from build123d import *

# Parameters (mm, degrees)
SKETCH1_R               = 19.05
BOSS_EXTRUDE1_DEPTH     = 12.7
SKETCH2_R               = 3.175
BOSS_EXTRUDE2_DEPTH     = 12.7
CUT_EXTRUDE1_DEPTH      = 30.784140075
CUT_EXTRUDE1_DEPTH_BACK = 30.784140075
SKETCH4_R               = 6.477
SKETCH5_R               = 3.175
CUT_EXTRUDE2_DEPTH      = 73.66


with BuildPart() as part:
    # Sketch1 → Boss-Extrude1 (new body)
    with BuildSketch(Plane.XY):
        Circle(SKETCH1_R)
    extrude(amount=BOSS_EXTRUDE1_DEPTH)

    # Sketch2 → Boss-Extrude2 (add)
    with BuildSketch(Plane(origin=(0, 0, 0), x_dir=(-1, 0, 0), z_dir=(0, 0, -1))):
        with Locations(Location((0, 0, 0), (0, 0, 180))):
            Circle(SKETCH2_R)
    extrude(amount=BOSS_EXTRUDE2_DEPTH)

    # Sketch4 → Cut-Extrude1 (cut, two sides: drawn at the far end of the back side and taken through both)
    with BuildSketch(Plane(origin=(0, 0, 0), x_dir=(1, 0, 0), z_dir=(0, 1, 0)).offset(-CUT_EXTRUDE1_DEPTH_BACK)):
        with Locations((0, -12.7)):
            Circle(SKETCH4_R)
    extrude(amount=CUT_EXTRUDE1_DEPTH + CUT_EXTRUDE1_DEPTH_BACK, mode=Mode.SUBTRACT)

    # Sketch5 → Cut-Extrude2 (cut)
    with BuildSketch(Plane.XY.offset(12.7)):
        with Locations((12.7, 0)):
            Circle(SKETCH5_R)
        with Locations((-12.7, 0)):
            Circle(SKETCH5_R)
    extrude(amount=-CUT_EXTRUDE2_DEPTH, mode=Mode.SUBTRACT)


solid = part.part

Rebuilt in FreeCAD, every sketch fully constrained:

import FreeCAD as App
import Part
import Sketcher
from FreeCAD import Vector
Q = App.Units.Quantity

doc = App.newDocument("Part")
params = doc.addObject("Spreadsheet::Sheet", "Params")
for row, (alias, value) in enumerate([
    ("sketch1_diameter", "1.5 in"),
    ("pad1_length", "0.5 in"),
    ("sketch2_diameter", "0.25 in"),
    ("pad2_length", "0.5 in"),
    ("sketch3_diameter", "0.51 in"),
    ("sketch4_diameter", "0.25 in"),
    ("pocket2_length", "2.9 in"),
], start=1):
    params.set(f"A{row}", alias)
    params.set(f"B{row}", "=" + value)
    params.setAlias(f"B{row}", alias)

body = doc.addObject("PartDesign::Body", "Body")

sketch1 = body.newObject("Sketcher::SketchObject", "Sketch")
sketch1.AttachmentSupport = (doc.getObject("XY_Plane"), [""])
sketch1.MapMode = "FlatFace"
sketch1.addGeometry(Part.Circle(Vector(0, 0, 0), Vector(0, 0, 1), 19), False)
sketch1.addConstraint([
    Sketcher.Constraint("Coincident", 0, 3, -1, 1),
    Sketcher.Constraint("Diameter", 0, Q("1.5 in")),
])
sketch1.setExpression("Constraints[1]", "Params.sketch1_diameter")
pad1 = body.newObject("PartDesign::Pad", "Pad")
pad1.Profile = sketch1
pad1.setExpression("Length", "Params.pad1_length")

sketch2 = body.newObject("Sketcher::SketchObject", "Sketch001")
sketch2.AttachmentSupport = (doc.getObject("XY_Plane"), [""])
sketch2.MapMode = "FlatFace"
sketch2.addGeometry(Part.Circle(Vector(0, 0, 0), Vector(0, 0, 1), 3.2), False)
sketch2.addConstraint([
    Sketcher.Constraint("Coincident", 0, 3, -1, 1),
    Sketcher.Constraint("Diameter", 0, Q("0.25 in")),
])
sketch2.setExpression("Constraints[1]", "Params.sketch2_diameter")
pad2 = body.newObject("PartDesign::Pad", "Pad001")
pad2.Profile = sketch2
pad2.setExpression("Length", "Params.pad2_length")
pad2.Reversed = True

sketch3 = body.newObject("Sketcher::SketchObject", "Sketch002")
sketch3.AttachmentSupport = (doc.getObject("XZ_Plane"), [""])
sketch3.MapMode = "FlatFace"
sketch3.addGeometry(Part.Circle(Vector(0, 13, 0), Vector(0, 0, 1), 6), False)
sketch3.addConstraint([
    Sketcher.Constraint("PointOnObject", 0, 3, -2),
    Sketcher.Constraint("Diameter", 0, Q("0.51 in")),
    Sketcher.Constraint("DistanceY", -1, 1, 0, 3, Q("0.5 in")),
])
sketch3.setExpression("Constraints[1]", "Params.sketch3_diameter")
pocket1 = body.newObject("PartDesign::Pocket", "Pocket")
pocket1.Profile = sketch3
pocket1.Type = "ThroughAll"
pocket1.Midplane = True

sketch4 = body.newObject("Sketcher::SketchObject", "Sketch003")
sketch4.AttachmentSupport = (doc.getObject("XY_Plane"), [""])
sketch4.MapMode = "FlatFace"
sketch4.AttachmentOffset = App.Placement(Vector(0, 0, 0.5 * 25.4), App.Rotation())
sketch4.addGeometry([
    Part.Circle(Vector(12.7, 0, 0), Vector(0, 0, 1), 3.2),
    Part.Circle(Vector(-12.7, 0, 0), Vector(0, 0, 1), 3.2),
], False)
sketch4.addConstraint([
    Sketcher.Constraint("Equal", 0, 1),
    Sketcher.Constraint("Symmetric", 0, 3, 1, 3, -1, 1),
    Sketcher.Constraint("PointOnObject", 0, 3, -1),
    Sketcher.Constraint("Diameter", 0, Q("0.25 in")),
    Sketcher.Constraint("DistanceX", 1, 3, 0, 3, Q("1 in")),
])
sketch4.setExpression("Constraints[3]", "Params.sketch4_diameter")
pocket2 = body.newObject("PartDesign::Pocket", "Pocket001")
pocket2.Profile = sketch4
pocket2.setExpression("Length", "Params.pocket2_length")

doc.recompute()
